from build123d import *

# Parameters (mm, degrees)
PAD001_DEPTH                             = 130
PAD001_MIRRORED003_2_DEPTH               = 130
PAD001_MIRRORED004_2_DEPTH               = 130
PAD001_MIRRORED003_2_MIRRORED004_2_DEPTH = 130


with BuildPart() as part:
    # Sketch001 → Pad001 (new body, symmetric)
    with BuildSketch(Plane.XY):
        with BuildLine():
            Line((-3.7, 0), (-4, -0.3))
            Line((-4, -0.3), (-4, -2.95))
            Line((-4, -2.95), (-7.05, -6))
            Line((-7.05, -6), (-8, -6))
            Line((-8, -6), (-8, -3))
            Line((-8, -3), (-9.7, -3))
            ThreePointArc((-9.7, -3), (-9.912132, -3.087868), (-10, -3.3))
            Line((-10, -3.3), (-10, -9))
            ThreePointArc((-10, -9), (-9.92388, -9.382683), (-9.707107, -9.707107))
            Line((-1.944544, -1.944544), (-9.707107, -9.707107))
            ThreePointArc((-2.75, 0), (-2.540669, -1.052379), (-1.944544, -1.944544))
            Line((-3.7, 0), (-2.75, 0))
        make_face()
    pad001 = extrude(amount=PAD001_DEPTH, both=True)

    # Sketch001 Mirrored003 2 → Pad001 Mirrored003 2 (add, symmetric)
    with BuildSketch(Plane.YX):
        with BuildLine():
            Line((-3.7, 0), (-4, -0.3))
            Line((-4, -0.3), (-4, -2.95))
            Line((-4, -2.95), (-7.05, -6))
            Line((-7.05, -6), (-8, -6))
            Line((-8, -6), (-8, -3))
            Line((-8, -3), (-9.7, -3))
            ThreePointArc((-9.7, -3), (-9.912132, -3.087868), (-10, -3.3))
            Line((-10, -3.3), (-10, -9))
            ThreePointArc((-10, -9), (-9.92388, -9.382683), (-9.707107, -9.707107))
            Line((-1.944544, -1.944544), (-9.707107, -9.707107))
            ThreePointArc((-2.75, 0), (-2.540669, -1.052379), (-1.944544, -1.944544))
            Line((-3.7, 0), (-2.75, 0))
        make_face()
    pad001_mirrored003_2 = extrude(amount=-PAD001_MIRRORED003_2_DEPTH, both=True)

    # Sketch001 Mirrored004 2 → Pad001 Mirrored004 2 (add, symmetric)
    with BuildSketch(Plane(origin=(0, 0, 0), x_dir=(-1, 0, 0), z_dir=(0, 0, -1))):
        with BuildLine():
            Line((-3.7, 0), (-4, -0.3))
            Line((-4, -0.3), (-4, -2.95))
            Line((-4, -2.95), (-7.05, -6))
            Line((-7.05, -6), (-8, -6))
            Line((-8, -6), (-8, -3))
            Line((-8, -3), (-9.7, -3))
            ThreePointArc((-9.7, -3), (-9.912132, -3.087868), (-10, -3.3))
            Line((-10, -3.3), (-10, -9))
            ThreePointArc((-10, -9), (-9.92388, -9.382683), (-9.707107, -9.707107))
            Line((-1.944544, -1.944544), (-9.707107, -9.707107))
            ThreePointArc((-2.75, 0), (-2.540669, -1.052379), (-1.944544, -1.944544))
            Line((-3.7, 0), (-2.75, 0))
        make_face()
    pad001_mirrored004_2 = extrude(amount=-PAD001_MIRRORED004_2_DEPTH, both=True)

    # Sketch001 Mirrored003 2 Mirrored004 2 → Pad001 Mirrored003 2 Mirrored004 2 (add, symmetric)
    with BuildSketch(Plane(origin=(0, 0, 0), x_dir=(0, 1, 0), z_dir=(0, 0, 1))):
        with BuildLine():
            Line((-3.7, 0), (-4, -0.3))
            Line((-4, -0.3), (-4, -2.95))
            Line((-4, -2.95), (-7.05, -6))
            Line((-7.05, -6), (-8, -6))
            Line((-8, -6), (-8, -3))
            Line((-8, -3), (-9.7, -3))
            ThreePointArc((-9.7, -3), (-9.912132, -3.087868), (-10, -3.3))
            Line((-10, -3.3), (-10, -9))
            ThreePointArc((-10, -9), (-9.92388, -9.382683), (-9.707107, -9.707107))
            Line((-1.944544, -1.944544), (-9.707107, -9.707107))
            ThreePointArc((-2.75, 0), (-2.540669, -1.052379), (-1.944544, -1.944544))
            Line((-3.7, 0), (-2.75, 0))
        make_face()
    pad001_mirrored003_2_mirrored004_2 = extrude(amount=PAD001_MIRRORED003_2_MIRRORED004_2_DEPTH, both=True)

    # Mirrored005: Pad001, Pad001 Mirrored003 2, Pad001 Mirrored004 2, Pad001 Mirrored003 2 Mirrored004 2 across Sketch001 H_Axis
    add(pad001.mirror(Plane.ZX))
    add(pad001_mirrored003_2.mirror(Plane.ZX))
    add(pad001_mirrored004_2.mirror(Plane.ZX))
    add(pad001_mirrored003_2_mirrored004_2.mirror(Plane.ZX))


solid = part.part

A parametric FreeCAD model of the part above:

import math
import FreeCAD as App
import Part
import Sketcher
Q = App.Units.Quantity

doc = App.newDocument("Part")
body = doc.addObject("PartDesign::Body", "Body")
body.AllowCompound = True

# Sketch on XY plane
sketch1 = body.newObject("Sketcher::SketchObject", "Sketch")
sketch1.AttachmentSupport = (doc.getObject("XY_Plane"), [""])
sketch1.MapMode = "FlatFace"
sketch1.addGeometry(Part.LineSegment(App.Vector(-3.7, 0, 0), App.Vector(-4, -0.3, 0)), False)
sketch1.addGeometry(Part.LineSegment(App.Vector(-4, -0.3, 0), App.Vector(-4, -2.95, 0)), False)
sketch1.addGeometry(Part.LineSegment(App.Vector(-4, -2.95, 0), App.Vector(-7.05, -6, 0)), False)
sketch1.addGeometry(Part.LineSegment(App.Vector(-7.05, -6, 0), App.Vector(-8, -6, 0)), False)
sketch1.addGeometry(Part.LineSegment(App.Vector(-8, -6, 0), App.Vector(-8, -3, 0)), False)
sketch1.addGeometry(Part.LineSegment(App.Vector(-8, -3, 0), App.Vector(-9.7, -3, 0)), False)
sketch1.addGeometry(Part.ArcOfCircle(Part.Circle(App.Vector(-9.7, -3.3, 0), App.Vector(0, 0, 1), 0.3), math.radians(90), math.radians(180)), False)
sketch1.addGeometry(Part.LineSegment(App.Vector(-10, -3.3, 0), App.Vector(-10, -9, 0)), False)
sketch1.addGeometry(Part.ArcOfCircle(Part.Circle(App.Vector(-9, -9, 0), App.Vector(0, 0, 1), 1), math.radians(180), math.radians(225)), False)
sketch1.addGeometry(Part.LineSegment(App.Vector(-9.71, -9.71, 0), App.Vector(-1.94, -1.94, 0)), False)
sketch1.addGeometry(Part.ArcOfCircle(Part.Circle(App.Vector(0, 0, 0), App.Vector(0, 0, 1), 2.75), math.radians(-180), math.radians(-135)), False)
sketch1.addGeometry(Part.LineSegment(App.Vector(-2.75, 0, 0), App.Vector(-3.7, 0, 0)), False)
sketch1.addConstraint(Sketcher.Constraint("Coincident", 0, 2, 1, 1))
sketch1.addConstraint(Sketcher.Constraint("Coincident", 1, 2, 2, 1))
sketch1.addConstraint(Sketcher.Constraint("Coincident", 2, 2, 3, 1))
sketch1.addConstraint(Sketcher.Constraint("Coincident", 3, 2, 4, 1))
sketch1.addConstraint(Sketcher.Constraint("Coincident", 4, 2, 5, 1))
sketch1.addConstraint(Sketcher.Constraint("Tangent", 5, 2, 6, 1))
sketch1.addConstraint(Sketcher.Constraint("Tangent", 6, 2, 7, 1))
sketch1.addConstraint(Sketcher.Constraint("Tangent", 7, 2, 8, 1))
sketch1.addConstraint(Sketcher.Constraint("Coincident", 8, 2, 9, 1))
sketch1.addConstraint(Sketcher.Constraint("Coincident", 9, 2, 10, 2))
sketch1.addConstraint(Sketcher.Constraint("Coincident", 10, 1, 11, 1))
sketch1.addConstraint(Sketcher.Constraint("Coincident", 11, 2, 0, 1))
sketch1.addConstraint(Sketcher.Constraint("Vertical", 1))
sketch1.addConstraint(Sketcher.Constraint("Horizontal", 3))
sketch1.addConstraint(Sketcher.Constraint("Vertical", 4))
sketch1.addConstraint(Sketcher.Constraint("Horizontal", 5))
sketch1.addConstraint(Sketcher.Constraint("Vertical", 7))
sketch1.addConstraint(Sketcher.Constraint("Horizontal", 11))
sketch1.addConstraint(Sketcher.Constraint("Coincident", 10, 3, -1, 1))
sketch1.addConstraint(Sketcher.Constraint("PointOnObject", 10, 1, -1))
sketch1.addConstraint(Sketcher.Constraint("Parallel", 0, 2))
sketch1.addConstraint(Sketcher.Constraint("Parallel", 2, 9))
sketch1.addConstraint(Sketcher.Constraint("Equal", 3, 11))
sketch1.addConstraint(Sketcher.Constraint("Radius", 8, Q("0.999999 mm")))
sketch1.addConstraint(Sketcher.Constraint("Radius", 6, Q("0.3 mm")))
sketch1.addConstraint(Sketcher.Constraint("DistanceY", 4, 1, 4, 2, Q("3 mm")))
sketch1.addConstraint(Sketcher.Constraint("Angle", 0, Q("-135 deg")))
sketch1.addConstraint(Sketcher.Constraint("DistanceX", 5, 2, 5, 1, Q("1.7 mm")))
sketch1.addConstraint(Sketcher.Constraint("DistanceY", 7, 2, 7, 1, Q("5.7 mm")))
sketch1.addConstraint(Sketcher.Constraint("DistanceX", 8, 3, -1, 1, Q("9.000001 mm")))
sketch1.addConstraint(Sketcher.Constraint("DistanceY", 8, 3, -1, 1, Q("9.000001 mm")))
sketch1.addConstraint(Sketcher.Constraint("DistanceX", 0, 2, -1, 1, Q("4 mm")))
sketch1.addConstraint(Sketcher.Constraint("DistanceY", 6, 3, 0, 2, Q("3 mm")))
sketch1.addConstraint(Sketcher.Constraint("DistanceX", 3, 2, 3, 1, Q("0.95 mm")))
sketch1.addConstraint(Sketcher.Constraint("DistanceX", 8, 2, -1, 1, Q("9.707107 mm")))
pad1 = body.newObject("PartDesign::Pad", "Pad")
pad1.Profile = sketch1
pad1.Length = 260
pad1.Midplane = True

# Sketch on XY plane
sketch2 = body.newObject("Sketcher::SketchObject", "Sketch001")
sketch2.AttachmentSupport = (doc.getObject("XY_Plane"), [""])
sketch2.MapMode = "FlatFace"
sketch2.addGeometry(Part.LineSegment(App.Vector(0, -3.7, 0), App.Vector(-0.3, -4, 0)), False)
sketch2.addGeometry(Part.LineSegment(App.Vector(-0.3, -4, 0), App.Vector(-2.95, -4, 0)), False)
sketch2.addGeometry(Part.LineSegment(App.Vector(-2.95, -4, 0), App.Vector(-6, -7.05, 0)), False)
sketch2.addGeometry(Part.LineSegment(App.Vector(-6, -7.05, 0), App.Vector(-6, -8, 0)), False)
sketch2.addGeometry(Part.LineSegment(App.Vector(-6, -8, 0), App.Vector(-3, -8, 0)), False)
sketch2.addGeometry(Part.LineSegment(App.Vector(-3, -8, 0), App.Vector(-3, -9.7, 0)), False)
sketch2.addGeometry(Part.ArcOfCircle(Part.Circle(App.Vector(-3.3, -9.7, 0), App.Vector(0, 0, 1), 0.3), math.radians(-90), math.radians(0)), False)
sketch2.addGeometry(Part.LineSegment(App.Vector(-3.3, -10, 0), App.Vector(-9, -10, 0)), False)
sketch2.addGeometry(Part.ArcOfCircle(Part.Circle(App.Vector(-9, -9, 0), App.Vector(0, 0, 1), 1), math.radians(-135), math.radians(-90)), False)
sketch2.addGeometry(Part.LineSegment(App.Vector(-9.71, -9.71, 0), App.Vector(-1.94, -1.94, 0)), False)
sketch2.addGeometry(Part.ArcOfCircle(Part.Circle(App.Vector(0, 0, 0), App.Vector(0, 0, 1), 2.75), math.radians(-135), math.radians(-90)), False)
sketch2.addGeometry(Part.LineSegment(App.Vector(0, -2.75, 0), App.Vector(0, -3.7, 0)), False)
sketch2.addConstraint(Sketcher.Constraint("Coincident", 0, 2, 1, 1))
sketch2.addConstraint(Sketcher.Constraint("Coincident", 1, 2, 2, 1))
sketch2.addConstraint(Sketcher.Constraint("Coincident", 2, 2, 3, 1))
sketch2.addConstraint(Sketcher.Constraint("Coincident", 3, 2, 4, 1))
sketch2.addConstraint(Sketcher.Constraint("Coincident", 4, 2, 5, 1))
sketch2.addConstraint(Sketcher.Constraint("Tangent", 5, 2, 6, 2))
sketch2.addConstraint(Sketcher.Constraint("Tangent", 6, 1, 7, 1))
sketch2.addConstraint(Sketcher.Constraint("Tangent", 7, 2, 8, 2))
sketch2.addConstraint(Sketcher.Constraint("Coincident", 8, 1, 9, 1))
sketch2.addConstraint(Sketcher.Constraint("Coincident", 9, 2, 10, 1))
sketch2.addConstraint(Sketcher.Constraint("Coincident", 10, 2, 11, 1))
sketch2.addConstraint(Sketcher.Constraint("Coincident", 11, 2, 0, 1))
sketch2.addConstraint(Sketcher.Constraint("Horizontal", 1))
sketch2.addConstraint(Sketcher.Constraint("Vertical", 3))
sketch2.addConstraint(Sketcher.Constraint("Horizontal", 4))
sketch2.addConstraint(Sketcher.Constraint("Vertical", 5))
sketch2.addConstraint(Sketcher.Constraint("Horizontal", 7))
sketch2.addConstraint(Sketcher.Constraint("Vertical", 11))
sketch2.addConstraint(Sketcher.Constraint("Coincident", 10, 3, -1, 1))
sketch2.addConstraint(Sketcher.Constraint("PointOnObject", 10, 2, -2))
sketch2.addConstraint(Sketcher.Constraint("Parallel", 0, 2))
sketch2.addConstraint(Sketcher.Constraint("Parallel", 2, 9))
sketch2.addConstraint(Sketcher.Constraint("Equal", 3, 11))
sketch2.addConstraint(Sketcher.Constraint("Radius", 8, Q("0.999999 mm")))
sketch2.addConstraint(Sketcher.Constraint("Radius", 6, Q("0.3 mm")))
sketch2.addConstraint(Sketcher.Constraint("DistanceX", 4, 1, 4, 2, Q("3 mm")))
sketch2.addConstraint(Sketcher.Constraint("Angle", 0, Q("-135 deg")))
sketch2.addConstraint(Sketcher.Constraint("DistanceX", 7, 2, 7, 1, Q("5.7 mm")))
sketch2.addConstraint(Sketcher.Constraint("DistanceY", 5, 2, 5, 1, Q("1.7 mm")))
sketch2.addConstraint(Sketcher.Constraint("DistanceX", 8, 3, -1, 1, Q("9.000001 mm")))
sketch2.addConstraint(Sketcher.Constraint("DistanceY", 8, 3, -1, 1, Q("9.000001 mm")))
sketch2.addConstraint(Sketcher.Constraint("DistanceY", 0, 2, -1, 1, Q("4 mm")))
sketch2.addConstraint(Sketcher.Constraint("DistanceX", 6, 3, 0, 2, Q("3 mm")))
sketch2.addConstraint(Sketcher.Constraint("DistanceX", 1, 2, 1, 1, Q("2.65 mm")))
sketch2.addConstraint(Sketcher.Constraint("DistanceX", 8, 1, -1, 1, Q("9.707107 mm")))
pad2 = body.newObject("PartDesign::Pad", "Pad001")
pad2.Profile = sketch2
pad2.Length = 260
pad2.Midplane = True

# Sketch on XY plane
sketch3 = body.newObject("Sketcher::SketchObject", "Sketch002")
sketch3.AttachmentSupport = (doc.getObject("XY_Plane"), [""])
sketch3.MapMode = "FlatFace"
sketch3.addGeometry(Part.LineSegment(App.Vector(3.7, 0, 0), App.Vector(4, -0.3, 0)), False)
sketch3.addGeometry(Part.LineSegment(App.Vector(4, -0.3, 0), App.Vector(4, -2.95, 0)), False)
sketch3.addGeometry(Part.LineSegment(App.Vector(4, -2.95, 0), App.Vector(7.05, -6, 0)), False)
sketch3.addGeometry(Part.LineSegment(App.Vector(7.05, -6, 0), App.Vector(8, -6, 0)), False)
sketch3.addGeometry(Part.LineSegment(App.Vector(8, -6, 0), App.Vector(8, -3, 0)), False)
sketch3.addGeometry(Part.LineSegment(App.Vector(8, -3, 0), App.Vector(9.7, -3, 0)), False)
sketch3.addGeometry(Part.ArcOfCircle(Part.Circle(App.Vector(9.7, -3.3, 0), App.Vector(0, 0, 1), 0.3), math.radians(0), math.radians(90)), False)
sketch3.addGeometry(Part.LineSegment(App.Vector(10, -3.3, 0), App.Vector(10, -9, 0)), False)
sketch3.addGeometry(Part.ArcOfCircle(Part.Circle(App.Vector(9, -9, 0), App.Vector(0, 0, 1), 1), math.radians(-45), math.radians(0)), False)
sketch3.addGeometry(Part.LineSegment(App.Vector(9.71, -9.71, 0), App.Vector(1.94, -1.94, 0)), False)
sketch3.addGeometry(Part.ArcOfCircle(Part.Circle(App.Vector(0, 0, 0), App.Vector(0, 0, 1), 2.75), math.radians(-45), math.radians(0)), False)
sketch3.addGeometry(Part.LineSegment(App.Vector(2.75, 0, 0), App.Vector(3.7, 0, 0)), False)
sketch3.addConstraint(Sketcher.Constraint("Coincident", 0, 2, 1, 1))
sketch3.addConstraint(Sketcher.Constraint("Coincident", 1, 2, 2, 1))
sketch3.addConstraint(Sketcher.Constraint("Coincident", 2, 2, 3, 1))
sketch3.addConstraint(Sketcher.Constraint("Coincident", 3, 2, 4, 1))
sketch3.addConstraint(Sketcher.Constraint("Coincident", 4, 2, 5, 1))
sketch3.addConstraint(Sketcher.Constraint("Tangent", 5, 2, 6, 2))
sketch3.addConstraint(Sketcher.Constraint("Tangent", 6, 1, 7, 1))
sketch3.addConstraint(Sketcher.Constraint("Tangent", 7, 2, 8, 2))
sketch3.addConstraint(Sketcher.Constraint("Coincident", 8, 1, 9, 1))
sketch3.addConstraint(Sketcher.Constraint("Coincident", 9, 2, 10, 1))
sketch3.addConstraint(Sketcher.Constraint("Coincident", 10, 2, 11, 1))
sketch3.addConstraint(Sketcher.Constraint("Coincident", 11, 2, 0, 1))
sketch3.addConstraint(Sketcher.Constraint("Vertical", 1))
sketch3.addConstraint(Sketcher.Constraint("Horizontal", 3))
sketch3.addConstraint(Sketcher.Constraint("Vertical", 4))
sketch3.addConstraint(Sketcher.Constraint("Horizontal", 5))
sketch3.addConstraint(Sketcher.Constraint("Vertical", 7))
sketch3.addConstraint(Sketcher.Constraint("Horizontal", 11))
sketch3.addConstraint(Sketcher.Constraint("Coincident", 10, 3, -1, 1))
sketch3.addConstraint(Sketcher.Constraint("PointOnObject", 10, 2, -1))
sketch3.addConstraint(Sketcher.Constraint("Parallel", 0, 2))
sketch3.addConstraint(Sketcher.Constraint("Parallel", 2, 9))
sketch3.addConstraint(Sketcher.Constraint("Equal", 3, 11))
sketch3.addConstraint(Sketcher.Constraint("Radius", 8, Q("0.999999 mm")))
sketch3.addConstraint(Sketcher.Constraint("Radius", 6, Q("0.3 mm")))
sketch3.addConstraint(Sketcher.Constraint("DistanceY", 4, 1, 4, 2, Q("3 mm")))
sketch3.addConstraint(Sketcher.Constraint("Angle", 0, Q("-45 deg")))
sketch3.addConstraint(Sketcher.Constraint("DistanceX", 5, 1, 5, 2, Q("1.7 mm")))
sketch3.addConstraint(Sketcher.Constraint("DistanceY", 7, 2, 7, 1, Q("5.7 mm")))
sketch3.addConstraint(Sketcher.Constraint("DistanceX", -1, 1, 8, 3, Q("9.000001 mm")))
sketch3.addConstraint(Sketcher.Constraint("DistanceY", 8, 3, -1, 1, Q("9.000001 mm")))
sketch3.addConstraint(Sketcher.Constraint("DistanceX", -1, 1, 0, 2, Q("4 mm")))
sketch3.addConstraint(Sketcher.Constraint("DistanceY", 6, 3, 0, 2, Q("3 mm")))
sketch3.addConstraint(Sketcher.Constraint("DistanceX", 3, 1, 3, 2, Q("0.95 mm")))
sketch3.addConstraint(Sketcher.Constraint("DistanceX", -1, 1, 8, 1, Q("9.707107 mm")))
pad3 = body.newObject("PartDesign::Pad", "Pad002")
pad3.Profile = sketch3
pad3.Length = 260
pad3.Midplane = True

# Sketch on XY plane
sketch4 = body.newObject("Sketcher::SketchObject", "Sketch003")
sketch4.AttachmentSupport = (doc.getObject("XY_Plane"), [""])
sketch4.MapMode = "FlatFace"
sketch4.addGeometry(Part.LineSegment(App.Vector(0, -3.7, 0), App.Vector(0.3, -4, 0)), False)
sketch4.addGeometry(Part.LineSegment(App.Vector(0.3, -4, 0), App.Vector(2.95, -4, 0)), False)
sketch4.addGeometry(Part.LineSegment(App.Vector(2.95, -4, 0), App.Vector(6, -7.05, 0)), False)
sketch4.addGeometry(Part.LineSegment(App.Vector(6, -7.05, 0), App.Vector(6, -8, 0)), False)
sketch4.addGeometry(Part.LineSegment(App.Vector(6, -8, 0), App.Vector(3, -8, 0)), False)
sketch4.addGeometry(Part.LineSegment(App.Vector(3, -8, 0), App.Vector(3, -9.7, 0)), False)
sketch4.addGeometry(Part.ArcOfCircle(Part.Circle(App.Vector(3.3, -9.7, 0), App.Vector(0, 0, 1), 0.3), math.radians(-180), math.radians(-90)), False)
sketch4.addGeometry(Part.LineSegment(App.Vector(3.3, -10, 0), App.Vector(9, -10, 0)), False)
sketch4.addGeometry(Part.ArcOfCircle(Part.Circle(App.Vector(9, -9, 0), App.Vector(0, 0, 1), 1), math.radians(-90), math.radians(-45)), False)
sketch4.addGeometry(Part.LineSegment(App.Vector(9.71, -9.71, 0), App.Vector(1.94, -1.94, 0)), False)
sketch4.addGeometry(Part.ArcOfCircle(Part.Circle(App.Vector(0, 0, 0), App.Vector(0, 0, 1), 2.75), math.radians(-90), math.radians(-45)), False)
sketch4.addGeometry(Part.LineSegment(App.Vector(0, -2.75, 0), App.Vector(0, -3.7, 0)), False)
sketch4.addConstraint(Sketcher.Constraint("Coincident", 0, 2, 1, 1))
sketch4.addConstraint(Sketcher.Constraint("Coincident", 1, 2, 2, 1))
sketch4.addConstraint(Sketcher.Constraint("Coincident", 2, 2, 3, 1))
sketch4.addConstraint(Sketcher.Constraint("Coincident", 3, 2, 4, 1))
sketch4.addConstraint(Sketcher.Constraint("Coincident", 4, 2, 5, 1))
sketch4.addConstraint(Sketcher.Constraint("Tangent", 5, 2, 6, 1))
sketch4.addConstraint(Sketcher.Constraint("Tangent", 6, 2, 7, 1))
sketch4.addConstraint(Sketcher.Constraint("Tangent", 7, 2, 8, 1))
sketch4.addConstraint(Sketcher.Constraint("Coincident", 8, 2, 9, 1))
sketch4.addConstraint(Sketcher.Constraint("Coincident", 9, 2, 10, 2))
sketch4.addConstraint(Sketcher.Constraint("Coincident", 10, 1, 11, 1))
sketch4.addConstraint(Sketcher.Constraint("Coincident", 11, 2, 0, 1))
sketch4.addConstraint(Sketcher.Constraint("Horizontal", 1))
sketch4.addConstraint(Sketcher.Constraint("Vertical", 3))
sketch4.addConstraint(Sketcher.Constraint("Horizontal", 4))
sketch4.addConstraint(Sketcher.Constraint("Vertical", 5))
sketch4.addConstraint(Sketcher.Constraint("Horizontal", 7))
sketch4.addConstraint(Sketcher.Constraint("Vertical", 11))
sketch4.addConstraint(Sketcher.Constraint("Coincident", 10, 3, -1, 1))
sketch4.addConstraint(Sketcher.Constraint("PointOnObject", 10, 1, -2))
sketch4.addConstraint(Sketcher.Constraint("Parallel", 0, 2))
sketch4.addConstraint(Sketcher.Constraint("Parallel", 2, 9))
sketch4.addConstraint(Sketcher.Constraint("Equal", 3, 11))
sketch4.addConstraint(Sketcher.Constraint("Radius", 8, Q("0.999999 mm")))
sketch4.addConstraint(Sketcher.Constraint("Radius", 6, Q("0.3 mm")))
sketch4.addConstraint(Sketcher.Constraint("DistanceX", 4, 2, 4, 1, Q("3 mm")))
sketch4.addConstraint(Sketcher.Constraint("Angle", 0, Q("-45 deg")))
sketch4.addConstraint(Sketcher.Constraint("DistanceX", 7, 1, 7, 2, Q("5.7 mm")))
sketch4.addConstraint(Sketcher.Constraint("DistanceY", 5, 2, 5, 1, Q("1.7 mm")))
sketch4.addConstraint(Sketcher.Constraint("DistanceX", -1, 1, 8, 3, Q("9.000001 mm")))
sketch4.addConstraint(Sketcher.Constraint("DistanceY", 8, 3, -1, 1, Q("9.000001 mm")))
sketch4.addConstraint(Sketcher.Constraint("DistanceY", 0, 2, -1, 1, Q("4 mm")))
sketch4.addConstraint(Sketcher.Constraint("DistanceX", 0, 2, 6, 3, Q("3 mm")))
sketch4.addConstraint(Sketcher.Constraint("DistanceX", 1, 1, 1, 2, Q("2.65 mm")))
sketch4.addConstraint(Sketcher.Constraint("DistanceX", -1, 1, 8, 2, Q("9.707107 mm")))
pad4 = body.newObject("PartDesign::Pad", "Pad003")
pad4.Profile = sketch4
pad4.Length = 260
pad4.Midplane = True
doc.recompute()

mirrored = body.newObject("PartDesign::Mirrored", "Mirrored")
mirrored.Originals = [pad1, pad2, pad3, pad4]
mirrored.MirrorPlane = (doc.getObject("XZ_Plane"), [""])
body.Tip = mirrored

doc.recompute()
